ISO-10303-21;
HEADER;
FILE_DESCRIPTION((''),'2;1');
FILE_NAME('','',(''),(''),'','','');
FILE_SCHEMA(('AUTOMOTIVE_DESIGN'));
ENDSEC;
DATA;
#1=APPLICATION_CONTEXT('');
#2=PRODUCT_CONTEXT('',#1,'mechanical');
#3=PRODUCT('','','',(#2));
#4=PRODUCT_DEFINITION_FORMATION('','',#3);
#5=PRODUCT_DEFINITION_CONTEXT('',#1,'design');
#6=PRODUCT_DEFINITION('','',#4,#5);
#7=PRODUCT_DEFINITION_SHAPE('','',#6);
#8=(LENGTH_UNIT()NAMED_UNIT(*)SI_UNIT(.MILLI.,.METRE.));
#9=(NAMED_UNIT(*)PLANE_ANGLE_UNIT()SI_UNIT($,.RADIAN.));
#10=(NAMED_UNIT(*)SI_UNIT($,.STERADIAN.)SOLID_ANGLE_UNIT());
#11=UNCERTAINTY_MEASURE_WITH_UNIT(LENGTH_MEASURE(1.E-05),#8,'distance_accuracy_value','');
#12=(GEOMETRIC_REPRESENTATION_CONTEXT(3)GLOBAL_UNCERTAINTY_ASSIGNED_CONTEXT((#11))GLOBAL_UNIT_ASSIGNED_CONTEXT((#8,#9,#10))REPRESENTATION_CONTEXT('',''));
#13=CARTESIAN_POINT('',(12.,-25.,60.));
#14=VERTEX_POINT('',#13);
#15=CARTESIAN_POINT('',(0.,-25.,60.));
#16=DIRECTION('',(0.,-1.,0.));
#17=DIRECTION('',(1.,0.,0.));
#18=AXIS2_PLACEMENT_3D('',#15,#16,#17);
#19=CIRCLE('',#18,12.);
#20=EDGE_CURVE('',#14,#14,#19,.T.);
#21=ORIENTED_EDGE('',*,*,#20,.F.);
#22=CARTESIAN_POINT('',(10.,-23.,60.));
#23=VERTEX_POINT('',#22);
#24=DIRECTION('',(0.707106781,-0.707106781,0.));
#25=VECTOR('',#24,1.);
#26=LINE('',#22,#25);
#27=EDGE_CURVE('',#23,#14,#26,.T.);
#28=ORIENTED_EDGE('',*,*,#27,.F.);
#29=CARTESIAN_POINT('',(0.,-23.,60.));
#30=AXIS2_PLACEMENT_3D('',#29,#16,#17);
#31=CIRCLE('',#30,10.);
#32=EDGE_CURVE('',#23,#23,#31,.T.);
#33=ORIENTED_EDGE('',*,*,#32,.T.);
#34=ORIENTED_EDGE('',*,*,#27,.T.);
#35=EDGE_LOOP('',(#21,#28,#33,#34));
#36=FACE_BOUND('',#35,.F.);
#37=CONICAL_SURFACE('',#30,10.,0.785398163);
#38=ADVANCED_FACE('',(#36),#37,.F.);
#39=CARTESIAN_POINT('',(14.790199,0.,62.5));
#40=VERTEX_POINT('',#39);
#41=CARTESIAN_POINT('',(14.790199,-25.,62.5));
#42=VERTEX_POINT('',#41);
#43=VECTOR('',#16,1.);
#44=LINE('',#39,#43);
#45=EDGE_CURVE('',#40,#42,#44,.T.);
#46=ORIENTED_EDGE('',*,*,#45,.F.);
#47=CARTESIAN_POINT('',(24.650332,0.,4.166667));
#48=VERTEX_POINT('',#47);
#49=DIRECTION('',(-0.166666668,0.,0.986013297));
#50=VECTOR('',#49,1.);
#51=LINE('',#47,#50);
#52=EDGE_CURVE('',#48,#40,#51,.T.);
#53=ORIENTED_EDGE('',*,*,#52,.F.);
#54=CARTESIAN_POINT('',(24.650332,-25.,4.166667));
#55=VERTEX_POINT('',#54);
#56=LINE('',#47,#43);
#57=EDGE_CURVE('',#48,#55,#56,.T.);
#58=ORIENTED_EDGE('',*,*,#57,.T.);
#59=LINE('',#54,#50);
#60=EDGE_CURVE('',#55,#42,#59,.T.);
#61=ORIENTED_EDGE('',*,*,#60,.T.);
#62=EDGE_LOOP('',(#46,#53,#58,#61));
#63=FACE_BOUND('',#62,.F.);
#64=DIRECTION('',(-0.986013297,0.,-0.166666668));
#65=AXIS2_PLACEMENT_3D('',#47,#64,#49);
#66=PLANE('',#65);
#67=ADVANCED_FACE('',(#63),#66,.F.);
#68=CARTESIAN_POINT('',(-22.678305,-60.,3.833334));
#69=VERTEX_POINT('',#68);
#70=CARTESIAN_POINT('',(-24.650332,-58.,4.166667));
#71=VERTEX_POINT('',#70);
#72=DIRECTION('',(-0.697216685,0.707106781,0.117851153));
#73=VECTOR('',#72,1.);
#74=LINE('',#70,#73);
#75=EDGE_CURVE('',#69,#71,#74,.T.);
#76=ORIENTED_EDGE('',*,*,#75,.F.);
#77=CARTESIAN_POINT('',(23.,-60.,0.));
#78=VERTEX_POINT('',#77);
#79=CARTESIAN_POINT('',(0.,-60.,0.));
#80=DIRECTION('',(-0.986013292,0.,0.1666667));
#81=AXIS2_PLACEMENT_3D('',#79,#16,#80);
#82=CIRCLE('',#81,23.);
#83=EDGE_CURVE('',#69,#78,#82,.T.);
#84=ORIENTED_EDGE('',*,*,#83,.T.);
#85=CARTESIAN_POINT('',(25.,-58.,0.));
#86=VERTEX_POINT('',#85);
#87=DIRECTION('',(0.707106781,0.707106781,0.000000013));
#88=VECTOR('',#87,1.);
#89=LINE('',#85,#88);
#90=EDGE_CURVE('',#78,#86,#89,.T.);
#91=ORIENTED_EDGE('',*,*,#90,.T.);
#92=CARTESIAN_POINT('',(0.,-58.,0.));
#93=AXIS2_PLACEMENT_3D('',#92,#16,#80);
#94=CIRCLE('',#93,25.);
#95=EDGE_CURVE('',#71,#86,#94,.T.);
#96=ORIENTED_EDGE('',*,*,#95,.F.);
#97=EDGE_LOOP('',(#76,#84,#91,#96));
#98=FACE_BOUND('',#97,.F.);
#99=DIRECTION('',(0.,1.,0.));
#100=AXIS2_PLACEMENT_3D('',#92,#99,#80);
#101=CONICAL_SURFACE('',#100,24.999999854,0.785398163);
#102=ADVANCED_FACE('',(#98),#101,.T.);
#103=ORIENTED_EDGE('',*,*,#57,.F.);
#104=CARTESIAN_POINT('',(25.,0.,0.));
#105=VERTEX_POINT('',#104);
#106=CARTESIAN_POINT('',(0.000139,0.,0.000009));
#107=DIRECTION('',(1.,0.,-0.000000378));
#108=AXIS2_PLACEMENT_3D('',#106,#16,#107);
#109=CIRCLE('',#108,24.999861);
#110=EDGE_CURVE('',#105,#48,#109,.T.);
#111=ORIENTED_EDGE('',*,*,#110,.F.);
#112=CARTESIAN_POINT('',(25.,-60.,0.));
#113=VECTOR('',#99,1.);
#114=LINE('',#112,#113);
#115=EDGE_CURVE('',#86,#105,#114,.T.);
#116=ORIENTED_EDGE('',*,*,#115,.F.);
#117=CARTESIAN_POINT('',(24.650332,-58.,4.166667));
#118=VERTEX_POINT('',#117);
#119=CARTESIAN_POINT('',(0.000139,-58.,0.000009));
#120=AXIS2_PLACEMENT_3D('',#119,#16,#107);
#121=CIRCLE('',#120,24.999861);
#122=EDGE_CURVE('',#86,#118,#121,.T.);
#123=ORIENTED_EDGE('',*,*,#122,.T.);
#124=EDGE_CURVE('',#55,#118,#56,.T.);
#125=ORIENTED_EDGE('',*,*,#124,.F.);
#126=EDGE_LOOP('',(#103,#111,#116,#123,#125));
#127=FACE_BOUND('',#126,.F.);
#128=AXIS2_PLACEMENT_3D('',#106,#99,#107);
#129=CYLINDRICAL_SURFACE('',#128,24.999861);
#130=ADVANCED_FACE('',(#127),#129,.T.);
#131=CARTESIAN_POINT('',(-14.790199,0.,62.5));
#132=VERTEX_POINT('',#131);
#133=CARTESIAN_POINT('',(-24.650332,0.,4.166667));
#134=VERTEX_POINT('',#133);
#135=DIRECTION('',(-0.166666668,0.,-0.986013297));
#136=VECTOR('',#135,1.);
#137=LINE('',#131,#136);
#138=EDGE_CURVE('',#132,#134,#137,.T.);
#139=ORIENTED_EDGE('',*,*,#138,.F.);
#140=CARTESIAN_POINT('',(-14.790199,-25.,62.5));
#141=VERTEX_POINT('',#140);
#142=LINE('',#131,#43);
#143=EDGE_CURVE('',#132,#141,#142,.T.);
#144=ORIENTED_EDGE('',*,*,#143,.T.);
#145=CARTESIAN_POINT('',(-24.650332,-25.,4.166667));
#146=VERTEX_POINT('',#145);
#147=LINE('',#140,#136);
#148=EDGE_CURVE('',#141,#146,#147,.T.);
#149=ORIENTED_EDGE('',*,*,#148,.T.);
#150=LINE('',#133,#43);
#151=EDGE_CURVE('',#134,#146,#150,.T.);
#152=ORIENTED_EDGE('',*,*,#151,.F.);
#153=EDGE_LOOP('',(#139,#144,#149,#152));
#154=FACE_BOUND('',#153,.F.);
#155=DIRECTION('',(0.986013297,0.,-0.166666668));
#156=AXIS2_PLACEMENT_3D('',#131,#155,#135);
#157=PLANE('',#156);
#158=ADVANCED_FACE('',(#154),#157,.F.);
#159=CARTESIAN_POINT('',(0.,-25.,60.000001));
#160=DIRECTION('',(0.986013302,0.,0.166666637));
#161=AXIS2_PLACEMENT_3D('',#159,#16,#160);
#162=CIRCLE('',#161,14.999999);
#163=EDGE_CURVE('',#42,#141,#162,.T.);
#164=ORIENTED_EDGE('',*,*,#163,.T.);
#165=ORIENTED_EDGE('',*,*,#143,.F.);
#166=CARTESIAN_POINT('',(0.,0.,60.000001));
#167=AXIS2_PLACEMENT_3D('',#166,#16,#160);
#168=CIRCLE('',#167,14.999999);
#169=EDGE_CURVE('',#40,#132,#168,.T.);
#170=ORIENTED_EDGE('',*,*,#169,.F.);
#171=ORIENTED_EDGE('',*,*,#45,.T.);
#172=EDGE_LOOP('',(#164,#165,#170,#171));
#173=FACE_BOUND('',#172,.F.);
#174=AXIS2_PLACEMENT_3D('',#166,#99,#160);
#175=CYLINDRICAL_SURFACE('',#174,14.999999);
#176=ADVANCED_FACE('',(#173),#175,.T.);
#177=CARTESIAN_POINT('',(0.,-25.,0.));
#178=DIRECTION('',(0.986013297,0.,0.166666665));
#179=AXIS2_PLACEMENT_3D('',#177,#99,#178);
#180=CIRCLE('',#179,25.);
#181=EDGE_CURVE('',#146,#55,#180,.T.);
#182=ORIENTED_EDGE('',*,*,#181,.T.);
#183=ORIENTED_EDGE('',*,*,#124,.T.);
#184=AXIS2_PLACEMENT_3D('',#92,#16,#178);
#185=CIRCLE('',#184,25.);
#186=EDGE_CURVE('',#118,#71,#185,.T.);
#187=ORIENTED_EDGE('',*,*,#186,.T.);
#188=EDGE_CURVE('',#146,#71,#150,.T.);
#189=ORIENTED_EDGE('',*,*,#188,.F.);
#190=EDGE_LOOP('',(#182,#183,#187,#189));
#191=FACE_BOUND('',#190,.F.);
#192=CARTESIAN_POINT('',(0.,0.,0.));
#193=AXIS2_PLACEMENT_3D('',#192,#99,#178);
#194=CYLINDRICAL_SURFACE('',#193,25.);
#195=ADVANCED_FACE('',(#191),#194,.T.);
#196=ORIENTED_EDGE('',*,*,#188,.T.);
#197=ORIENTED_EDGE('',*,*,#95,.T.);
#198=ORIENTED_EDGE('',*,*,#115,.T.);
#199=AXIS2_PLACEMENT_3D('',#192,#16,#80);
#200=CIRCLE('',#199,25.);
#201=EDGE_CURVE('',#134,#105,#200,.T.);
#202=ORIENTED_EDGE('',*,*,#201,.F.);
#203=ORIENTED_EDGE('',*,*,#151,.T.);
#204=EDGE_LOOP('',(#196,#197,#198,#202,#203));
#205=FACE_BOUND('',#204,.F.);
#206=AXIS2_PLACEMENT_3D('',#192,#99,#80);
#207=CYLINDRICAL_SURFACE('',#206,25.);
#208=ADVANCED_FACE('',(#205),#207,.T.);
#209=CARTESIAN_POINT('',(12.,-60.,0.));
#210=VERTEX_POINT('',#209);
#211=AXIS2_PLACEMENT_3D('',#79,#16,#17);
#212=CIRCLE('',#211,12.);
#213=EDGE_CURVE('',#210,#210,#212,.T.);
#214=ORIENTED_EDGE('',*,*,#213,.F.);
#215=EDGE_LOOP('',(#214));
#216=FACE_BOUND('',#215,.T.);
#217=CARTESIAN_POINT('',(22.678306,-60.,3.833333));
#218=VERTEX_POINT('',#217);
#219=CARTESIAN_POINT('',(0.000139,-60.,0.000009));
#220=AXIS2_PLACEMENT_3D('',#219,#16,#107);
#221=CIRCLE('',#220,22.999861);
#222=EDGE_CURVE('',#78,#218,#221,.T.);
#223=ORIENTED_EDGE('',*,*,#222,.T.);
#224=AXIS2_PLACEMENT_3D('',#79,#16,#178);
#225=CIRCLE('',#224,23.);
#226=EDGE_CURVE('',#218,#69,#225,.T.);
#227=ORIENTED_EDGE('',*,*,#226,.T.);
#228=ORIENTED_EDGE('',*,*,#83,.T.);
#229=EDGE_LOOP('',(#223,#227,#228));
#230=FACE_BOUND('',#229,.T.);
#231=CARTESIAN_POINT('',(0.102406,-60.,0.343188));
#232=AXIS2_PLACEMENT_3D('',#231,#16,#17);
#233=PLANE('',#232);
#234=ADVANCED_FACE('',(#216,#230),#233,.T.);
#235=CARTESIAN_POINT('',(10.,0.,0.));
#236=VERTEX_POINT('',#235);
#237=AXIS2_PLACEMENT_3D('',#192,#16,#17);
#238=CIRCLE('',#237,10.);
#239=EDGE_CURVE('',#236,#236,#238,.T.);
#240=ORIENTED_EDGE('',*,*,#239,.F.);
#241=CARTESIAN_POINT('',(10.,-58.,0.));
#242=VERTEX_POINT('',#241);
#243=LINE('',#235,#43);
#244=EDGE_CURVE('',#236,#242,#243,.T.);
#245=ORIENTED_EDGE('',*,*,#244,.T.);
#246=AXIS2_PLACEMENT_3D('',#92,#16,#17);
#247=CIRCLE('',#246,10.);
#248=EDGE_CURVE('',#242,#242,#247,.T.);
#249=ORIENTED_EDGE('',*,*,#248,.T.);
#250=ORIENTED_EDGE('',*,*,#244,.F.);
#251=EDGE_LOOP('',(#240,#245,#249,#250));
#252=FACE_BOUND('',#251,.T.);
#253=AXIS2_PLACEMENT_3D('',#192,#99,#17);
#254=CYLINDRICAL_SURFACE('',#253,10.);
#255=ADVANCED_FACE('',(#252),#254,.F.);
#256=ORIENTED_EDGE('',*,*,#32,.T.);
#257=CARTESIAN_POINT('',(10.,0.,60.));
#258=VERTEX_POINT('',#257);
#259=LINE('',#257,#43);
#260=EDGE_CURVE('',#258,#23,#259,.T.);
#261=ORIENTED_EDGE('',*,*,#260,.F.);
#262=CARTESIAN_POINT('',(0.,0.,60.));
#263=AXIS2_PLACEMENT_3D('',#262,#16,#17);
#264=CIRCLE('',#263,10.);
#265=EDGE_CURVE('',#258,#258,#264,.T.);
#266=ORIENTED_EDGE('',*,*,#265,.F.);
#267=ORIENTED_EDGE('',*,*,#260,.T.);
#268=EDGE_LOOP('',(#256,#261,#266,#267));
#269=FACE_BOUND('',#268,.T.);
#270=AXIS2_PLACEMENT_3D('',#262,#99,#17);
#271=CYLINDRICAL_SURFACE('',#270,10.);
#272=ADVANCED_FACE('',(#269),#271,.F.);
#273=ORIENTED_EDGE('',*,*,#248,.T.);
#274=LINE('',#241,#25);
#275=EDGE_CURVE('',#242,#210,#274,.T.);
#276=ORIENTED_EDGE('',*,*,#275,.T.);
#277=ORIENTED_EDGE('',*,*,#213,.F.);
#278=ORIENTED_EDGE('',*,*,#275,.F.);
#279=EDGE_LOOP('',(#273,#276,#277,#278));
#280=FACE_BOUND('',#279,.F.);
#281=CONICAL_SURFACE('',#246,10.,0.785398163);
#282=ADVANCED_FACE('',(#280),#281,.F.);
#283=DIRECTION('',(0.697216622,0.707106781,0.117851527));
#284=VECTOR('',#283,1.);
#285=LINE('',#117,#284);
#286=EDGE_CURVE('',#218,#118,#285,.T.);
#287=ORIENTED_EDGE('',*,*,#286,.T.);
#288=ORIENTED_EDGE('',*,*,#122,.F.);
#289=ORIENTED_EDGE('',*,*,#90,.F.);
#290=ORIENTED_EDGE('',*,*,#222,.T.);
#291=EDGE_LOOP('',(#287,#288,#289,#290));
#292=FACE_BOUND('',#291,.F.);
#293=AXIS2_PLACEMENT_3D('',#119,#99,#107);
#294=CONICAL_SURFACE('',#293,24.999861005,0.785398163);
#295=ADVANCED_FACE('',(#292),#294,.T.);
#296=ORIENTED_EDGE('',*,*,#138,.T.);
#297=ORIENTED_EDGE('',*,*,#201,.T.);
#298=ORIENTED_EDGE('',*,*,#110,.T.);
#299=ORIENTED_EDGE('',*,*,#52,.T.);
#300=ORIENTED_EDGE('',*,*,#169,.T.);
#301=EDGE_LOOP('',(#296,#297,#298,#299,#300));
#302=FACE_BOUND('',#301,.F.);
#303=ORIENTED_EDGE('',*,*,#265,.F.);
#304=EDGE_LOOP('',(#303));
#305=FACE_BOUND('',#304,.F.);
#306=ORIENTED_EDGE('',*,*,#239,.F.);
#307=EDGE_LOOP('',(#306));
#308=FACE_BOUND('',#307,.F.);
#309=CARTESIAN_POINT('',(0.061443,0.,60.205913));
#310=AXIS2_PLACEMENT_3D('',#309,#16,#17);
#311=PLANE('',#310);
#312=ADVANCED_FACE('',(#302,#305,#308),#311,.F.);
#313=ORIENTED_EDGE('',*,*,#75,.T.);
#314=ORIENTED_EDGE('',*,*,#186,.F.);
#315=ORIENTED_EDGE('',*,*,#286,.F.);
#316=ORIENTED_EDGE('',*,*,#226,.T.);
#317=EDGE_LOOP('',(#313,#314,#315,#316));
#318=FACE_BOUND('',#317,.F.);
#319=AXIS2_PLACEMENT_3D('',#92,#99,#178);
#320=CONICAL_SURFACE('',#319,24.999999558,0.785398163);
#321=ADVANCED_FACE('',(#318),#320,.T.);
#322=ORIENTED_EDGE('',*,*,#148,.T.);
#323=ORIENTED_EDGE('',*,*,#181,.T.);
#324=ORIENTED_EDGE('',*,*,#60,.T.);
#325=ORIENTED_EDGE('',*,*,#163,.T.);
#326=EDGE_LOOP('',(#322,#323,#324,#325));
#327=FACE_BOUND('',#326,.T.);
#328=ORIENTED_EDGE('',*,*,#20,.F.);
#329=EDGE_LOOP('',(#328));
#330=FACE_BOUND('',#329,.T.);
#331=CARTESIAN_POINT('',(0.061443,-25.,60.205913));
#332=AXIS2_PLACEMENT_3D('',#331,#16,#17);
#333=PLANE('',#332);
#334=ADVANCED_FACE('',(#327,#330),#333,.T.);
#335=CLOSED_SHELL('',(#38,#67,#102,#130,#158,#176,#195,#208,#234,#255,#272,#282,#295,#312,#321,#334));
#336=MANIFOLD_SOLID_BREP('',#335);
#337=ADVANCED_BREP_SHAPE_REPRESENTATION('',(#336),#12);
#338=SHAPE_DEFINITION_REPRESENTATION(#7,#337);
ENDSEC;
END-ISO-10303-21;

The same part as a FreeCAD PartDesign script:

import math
import FreeCAD as App
import Part
import Sketcher
from FreeCAD import Vector


def edges_at(feature, points):
    """Names of the edges that pass closest to the given points."""
    edges = feature.Shape.Edges
    near = lambda p: min(range(len(edges)), key=lambda i: edges[i].distToShape(Part.Vertex(*p))[0])
    return sorted({f"Edge{near(p) + 1}" for p in points})

doc = App.newDocument("Part")
body = doc.addObject("PartDesign::Body", "Body")

# Sketch on XZ plane
sketch1 = body.newObject("Sketcher::SketchObject", "Sketch")
sketch1.AttachmentSupport = (doc.getObject("XZ_Plane"), [""])
sketch1.MapMode = "FlatFace"
sketch1.addGeometry([
    Part.ArcOfCircle(Part.Circle(Vector(0, 60.000001, 0), Vector(0, 0, 1), 14.999999), math.radians(9.594066), math.radians(170.405934)),  # 0
    Part.LineSegment(Vector(-14.790199, 62.5, 0), Vector(-24.650332, 4.166667, 0)),  # 1
    Part.ArcOfCircle(Part.Circle(Vector(0, 0, 0), Vector(0, 0, 1), 25), math.radians(170.40593), math.radians(360.000001)),  # 2
    Part.ArcOfCircle(Part.Circle(Vector(0.000139, 0.000009, 0), Vector(0, 0, 1), 24.999861), math.radians(-0.000022), math.radians(9.594101)),  # 3
    Part.LineSegment(Vector(24.650332, 4.166667, 0), Vector(14.790199, 62.5, 0)),  # 4
    Part.Circle(Vector(0, 0, 0), Vector(0, 0, 1), 10),  # 5
    Part.Circle(Vector(0, 60, 0), Vector(0, 0, 1), 10),  # 6
], False)
sketch1.addConstraint([
    Sketcher.Constraint("Coincident", 0, 2, 1, 1),
    Sketcher.Constraint("Coincident", 1, 2, 2, 1),
    Sketcher.Constraint("Coincident", 2, 2, 3, 1),
    Sketcher.Constraint("Coincident", 3, 2, 4, 1),
    Sketcher.Constraint("Coincident", 4, 2, 0, 1),
    Sketcher.Constraint("Coincident", 2, 3, -1, 1),
    Sketcher.Constraint("Coincident", 5, 3, -1, 1),
    Sketcher.Constraint("Coincident", 6, 3, 0, 3),
    Sketcher.Constraint("PointOnObject", 0, 3, -2),
    Sketcher.Constraint("PointOnObject", 2, 2, -1),
    Sketcher.Constraint("Diameter", 5, 20.0),
    Sketcher.Constraint("Diameter", 6, 20.0),
    Sketcher.Constraint("Radius", 0, 14.999999),
    Sketcher.Constraint("Radius", 2, 25.0),
    Sketcher.Constraint("DistanceY", -1, 1, 0, 3, 60.000001),
    Sketcher.Constraint("DistanceY", -1, 1, 0, 2, 62.5),
    Sketcher.Constraint("DistanceY", -1, 1, 4, 2, 62.5),
    Sketcher.Constraint("Radius", 3, 24.999861),
    Sketcher.Constraint("DistanceX", 1, 2, -1, 1, 24.650332),
    Sketcher.Constraint("DistanceX", -1, 1, 3, 2, 24.650332),
    Sketcher.Constraint("DistanceY", 3, 3, 0, 3, 59.999991),
])
pad1 = body.newObject("PartDesign::Pad", "Pad")
pad1.Profile = sketch1
pad1.Length = 25

# Sketch on XZ plane
sketch2 = body.newObject("Sketcher::SketchObject", "Sketch001")
sketch2.AttachmentSupport = (doc.getObject("XZ_Plane"), [""])
sketch2.MapMode = "FlatFace"
sketch2.addGeometry([
    Part.ArcOfCircle(Part.Circle(Vector(0.000139, 0.000009, 0), Vector(0, 0, 1), 24.999861), math.radians(-0.000022), math.radians(9.594101)),
    Part.ArcOfCircle(Part.Circle(Vector(0, 0, 0), Vector(0, 0, 1), 25), math.radians(9.594068), math.radians(170.405932)),
    Part.ArcOfCircle(Part.Circle(Vector(0, 0, 0), Vector(0, 0, 1), 25), math.radians(170.40593), math.radians(360.000001)),
    Part.Circle(Vector(0, 0, 0), Vector(0, 0, 1), 10),
], False)
sketch2.addConstraint([
    Sketcher.Constraint("Coincident", 0, 2, 1, 1),
    Sketcher.Constraint("Coincident", 1, 2, 2, 1),
    Sketcher.Constraint("Coincident", 2, 2, 0, 1),
    Sketcher.Constraint("Coincident", 1, 3, -1, 1),
    Sketcher.Constraint("Coincident", 2, 3, -1, 1),
    Sketcher.Constraint("Coincident", 3, 3, -1, 1),
    Sketcher.Constraint("PointOnObject", 2, 2, -1),
    Sketcher.Constraint("Diameter", 3, 20.0),
    Sketcher.Constraint("Radius", 1, 25.0),
    Sketcher.Constraint("Radius", 0, 24.999861),
    Sketcher.Constraint("DistanceX", -1, 1, 0, 2, 24.650332),
    Sketcher.Constraint("DistanceX", 1, 2, -1, 1, 24.650332),
])
pad2 = body.newObject("PartDesign::Pad", "Pad001")
pad2.Profile = sketch2
pad2.Length = 60
doc.recompute()

chamfer = body.newObject("PartDesign::Chamfer", "Chamfer")
chamfer.Base = (pad2, edges_at(pad2, [(-2.091, -60, -24.912), (-10, -60, 0), (-10, -25, 60)]))
chamfer.Size = 2

doc.recompute()
